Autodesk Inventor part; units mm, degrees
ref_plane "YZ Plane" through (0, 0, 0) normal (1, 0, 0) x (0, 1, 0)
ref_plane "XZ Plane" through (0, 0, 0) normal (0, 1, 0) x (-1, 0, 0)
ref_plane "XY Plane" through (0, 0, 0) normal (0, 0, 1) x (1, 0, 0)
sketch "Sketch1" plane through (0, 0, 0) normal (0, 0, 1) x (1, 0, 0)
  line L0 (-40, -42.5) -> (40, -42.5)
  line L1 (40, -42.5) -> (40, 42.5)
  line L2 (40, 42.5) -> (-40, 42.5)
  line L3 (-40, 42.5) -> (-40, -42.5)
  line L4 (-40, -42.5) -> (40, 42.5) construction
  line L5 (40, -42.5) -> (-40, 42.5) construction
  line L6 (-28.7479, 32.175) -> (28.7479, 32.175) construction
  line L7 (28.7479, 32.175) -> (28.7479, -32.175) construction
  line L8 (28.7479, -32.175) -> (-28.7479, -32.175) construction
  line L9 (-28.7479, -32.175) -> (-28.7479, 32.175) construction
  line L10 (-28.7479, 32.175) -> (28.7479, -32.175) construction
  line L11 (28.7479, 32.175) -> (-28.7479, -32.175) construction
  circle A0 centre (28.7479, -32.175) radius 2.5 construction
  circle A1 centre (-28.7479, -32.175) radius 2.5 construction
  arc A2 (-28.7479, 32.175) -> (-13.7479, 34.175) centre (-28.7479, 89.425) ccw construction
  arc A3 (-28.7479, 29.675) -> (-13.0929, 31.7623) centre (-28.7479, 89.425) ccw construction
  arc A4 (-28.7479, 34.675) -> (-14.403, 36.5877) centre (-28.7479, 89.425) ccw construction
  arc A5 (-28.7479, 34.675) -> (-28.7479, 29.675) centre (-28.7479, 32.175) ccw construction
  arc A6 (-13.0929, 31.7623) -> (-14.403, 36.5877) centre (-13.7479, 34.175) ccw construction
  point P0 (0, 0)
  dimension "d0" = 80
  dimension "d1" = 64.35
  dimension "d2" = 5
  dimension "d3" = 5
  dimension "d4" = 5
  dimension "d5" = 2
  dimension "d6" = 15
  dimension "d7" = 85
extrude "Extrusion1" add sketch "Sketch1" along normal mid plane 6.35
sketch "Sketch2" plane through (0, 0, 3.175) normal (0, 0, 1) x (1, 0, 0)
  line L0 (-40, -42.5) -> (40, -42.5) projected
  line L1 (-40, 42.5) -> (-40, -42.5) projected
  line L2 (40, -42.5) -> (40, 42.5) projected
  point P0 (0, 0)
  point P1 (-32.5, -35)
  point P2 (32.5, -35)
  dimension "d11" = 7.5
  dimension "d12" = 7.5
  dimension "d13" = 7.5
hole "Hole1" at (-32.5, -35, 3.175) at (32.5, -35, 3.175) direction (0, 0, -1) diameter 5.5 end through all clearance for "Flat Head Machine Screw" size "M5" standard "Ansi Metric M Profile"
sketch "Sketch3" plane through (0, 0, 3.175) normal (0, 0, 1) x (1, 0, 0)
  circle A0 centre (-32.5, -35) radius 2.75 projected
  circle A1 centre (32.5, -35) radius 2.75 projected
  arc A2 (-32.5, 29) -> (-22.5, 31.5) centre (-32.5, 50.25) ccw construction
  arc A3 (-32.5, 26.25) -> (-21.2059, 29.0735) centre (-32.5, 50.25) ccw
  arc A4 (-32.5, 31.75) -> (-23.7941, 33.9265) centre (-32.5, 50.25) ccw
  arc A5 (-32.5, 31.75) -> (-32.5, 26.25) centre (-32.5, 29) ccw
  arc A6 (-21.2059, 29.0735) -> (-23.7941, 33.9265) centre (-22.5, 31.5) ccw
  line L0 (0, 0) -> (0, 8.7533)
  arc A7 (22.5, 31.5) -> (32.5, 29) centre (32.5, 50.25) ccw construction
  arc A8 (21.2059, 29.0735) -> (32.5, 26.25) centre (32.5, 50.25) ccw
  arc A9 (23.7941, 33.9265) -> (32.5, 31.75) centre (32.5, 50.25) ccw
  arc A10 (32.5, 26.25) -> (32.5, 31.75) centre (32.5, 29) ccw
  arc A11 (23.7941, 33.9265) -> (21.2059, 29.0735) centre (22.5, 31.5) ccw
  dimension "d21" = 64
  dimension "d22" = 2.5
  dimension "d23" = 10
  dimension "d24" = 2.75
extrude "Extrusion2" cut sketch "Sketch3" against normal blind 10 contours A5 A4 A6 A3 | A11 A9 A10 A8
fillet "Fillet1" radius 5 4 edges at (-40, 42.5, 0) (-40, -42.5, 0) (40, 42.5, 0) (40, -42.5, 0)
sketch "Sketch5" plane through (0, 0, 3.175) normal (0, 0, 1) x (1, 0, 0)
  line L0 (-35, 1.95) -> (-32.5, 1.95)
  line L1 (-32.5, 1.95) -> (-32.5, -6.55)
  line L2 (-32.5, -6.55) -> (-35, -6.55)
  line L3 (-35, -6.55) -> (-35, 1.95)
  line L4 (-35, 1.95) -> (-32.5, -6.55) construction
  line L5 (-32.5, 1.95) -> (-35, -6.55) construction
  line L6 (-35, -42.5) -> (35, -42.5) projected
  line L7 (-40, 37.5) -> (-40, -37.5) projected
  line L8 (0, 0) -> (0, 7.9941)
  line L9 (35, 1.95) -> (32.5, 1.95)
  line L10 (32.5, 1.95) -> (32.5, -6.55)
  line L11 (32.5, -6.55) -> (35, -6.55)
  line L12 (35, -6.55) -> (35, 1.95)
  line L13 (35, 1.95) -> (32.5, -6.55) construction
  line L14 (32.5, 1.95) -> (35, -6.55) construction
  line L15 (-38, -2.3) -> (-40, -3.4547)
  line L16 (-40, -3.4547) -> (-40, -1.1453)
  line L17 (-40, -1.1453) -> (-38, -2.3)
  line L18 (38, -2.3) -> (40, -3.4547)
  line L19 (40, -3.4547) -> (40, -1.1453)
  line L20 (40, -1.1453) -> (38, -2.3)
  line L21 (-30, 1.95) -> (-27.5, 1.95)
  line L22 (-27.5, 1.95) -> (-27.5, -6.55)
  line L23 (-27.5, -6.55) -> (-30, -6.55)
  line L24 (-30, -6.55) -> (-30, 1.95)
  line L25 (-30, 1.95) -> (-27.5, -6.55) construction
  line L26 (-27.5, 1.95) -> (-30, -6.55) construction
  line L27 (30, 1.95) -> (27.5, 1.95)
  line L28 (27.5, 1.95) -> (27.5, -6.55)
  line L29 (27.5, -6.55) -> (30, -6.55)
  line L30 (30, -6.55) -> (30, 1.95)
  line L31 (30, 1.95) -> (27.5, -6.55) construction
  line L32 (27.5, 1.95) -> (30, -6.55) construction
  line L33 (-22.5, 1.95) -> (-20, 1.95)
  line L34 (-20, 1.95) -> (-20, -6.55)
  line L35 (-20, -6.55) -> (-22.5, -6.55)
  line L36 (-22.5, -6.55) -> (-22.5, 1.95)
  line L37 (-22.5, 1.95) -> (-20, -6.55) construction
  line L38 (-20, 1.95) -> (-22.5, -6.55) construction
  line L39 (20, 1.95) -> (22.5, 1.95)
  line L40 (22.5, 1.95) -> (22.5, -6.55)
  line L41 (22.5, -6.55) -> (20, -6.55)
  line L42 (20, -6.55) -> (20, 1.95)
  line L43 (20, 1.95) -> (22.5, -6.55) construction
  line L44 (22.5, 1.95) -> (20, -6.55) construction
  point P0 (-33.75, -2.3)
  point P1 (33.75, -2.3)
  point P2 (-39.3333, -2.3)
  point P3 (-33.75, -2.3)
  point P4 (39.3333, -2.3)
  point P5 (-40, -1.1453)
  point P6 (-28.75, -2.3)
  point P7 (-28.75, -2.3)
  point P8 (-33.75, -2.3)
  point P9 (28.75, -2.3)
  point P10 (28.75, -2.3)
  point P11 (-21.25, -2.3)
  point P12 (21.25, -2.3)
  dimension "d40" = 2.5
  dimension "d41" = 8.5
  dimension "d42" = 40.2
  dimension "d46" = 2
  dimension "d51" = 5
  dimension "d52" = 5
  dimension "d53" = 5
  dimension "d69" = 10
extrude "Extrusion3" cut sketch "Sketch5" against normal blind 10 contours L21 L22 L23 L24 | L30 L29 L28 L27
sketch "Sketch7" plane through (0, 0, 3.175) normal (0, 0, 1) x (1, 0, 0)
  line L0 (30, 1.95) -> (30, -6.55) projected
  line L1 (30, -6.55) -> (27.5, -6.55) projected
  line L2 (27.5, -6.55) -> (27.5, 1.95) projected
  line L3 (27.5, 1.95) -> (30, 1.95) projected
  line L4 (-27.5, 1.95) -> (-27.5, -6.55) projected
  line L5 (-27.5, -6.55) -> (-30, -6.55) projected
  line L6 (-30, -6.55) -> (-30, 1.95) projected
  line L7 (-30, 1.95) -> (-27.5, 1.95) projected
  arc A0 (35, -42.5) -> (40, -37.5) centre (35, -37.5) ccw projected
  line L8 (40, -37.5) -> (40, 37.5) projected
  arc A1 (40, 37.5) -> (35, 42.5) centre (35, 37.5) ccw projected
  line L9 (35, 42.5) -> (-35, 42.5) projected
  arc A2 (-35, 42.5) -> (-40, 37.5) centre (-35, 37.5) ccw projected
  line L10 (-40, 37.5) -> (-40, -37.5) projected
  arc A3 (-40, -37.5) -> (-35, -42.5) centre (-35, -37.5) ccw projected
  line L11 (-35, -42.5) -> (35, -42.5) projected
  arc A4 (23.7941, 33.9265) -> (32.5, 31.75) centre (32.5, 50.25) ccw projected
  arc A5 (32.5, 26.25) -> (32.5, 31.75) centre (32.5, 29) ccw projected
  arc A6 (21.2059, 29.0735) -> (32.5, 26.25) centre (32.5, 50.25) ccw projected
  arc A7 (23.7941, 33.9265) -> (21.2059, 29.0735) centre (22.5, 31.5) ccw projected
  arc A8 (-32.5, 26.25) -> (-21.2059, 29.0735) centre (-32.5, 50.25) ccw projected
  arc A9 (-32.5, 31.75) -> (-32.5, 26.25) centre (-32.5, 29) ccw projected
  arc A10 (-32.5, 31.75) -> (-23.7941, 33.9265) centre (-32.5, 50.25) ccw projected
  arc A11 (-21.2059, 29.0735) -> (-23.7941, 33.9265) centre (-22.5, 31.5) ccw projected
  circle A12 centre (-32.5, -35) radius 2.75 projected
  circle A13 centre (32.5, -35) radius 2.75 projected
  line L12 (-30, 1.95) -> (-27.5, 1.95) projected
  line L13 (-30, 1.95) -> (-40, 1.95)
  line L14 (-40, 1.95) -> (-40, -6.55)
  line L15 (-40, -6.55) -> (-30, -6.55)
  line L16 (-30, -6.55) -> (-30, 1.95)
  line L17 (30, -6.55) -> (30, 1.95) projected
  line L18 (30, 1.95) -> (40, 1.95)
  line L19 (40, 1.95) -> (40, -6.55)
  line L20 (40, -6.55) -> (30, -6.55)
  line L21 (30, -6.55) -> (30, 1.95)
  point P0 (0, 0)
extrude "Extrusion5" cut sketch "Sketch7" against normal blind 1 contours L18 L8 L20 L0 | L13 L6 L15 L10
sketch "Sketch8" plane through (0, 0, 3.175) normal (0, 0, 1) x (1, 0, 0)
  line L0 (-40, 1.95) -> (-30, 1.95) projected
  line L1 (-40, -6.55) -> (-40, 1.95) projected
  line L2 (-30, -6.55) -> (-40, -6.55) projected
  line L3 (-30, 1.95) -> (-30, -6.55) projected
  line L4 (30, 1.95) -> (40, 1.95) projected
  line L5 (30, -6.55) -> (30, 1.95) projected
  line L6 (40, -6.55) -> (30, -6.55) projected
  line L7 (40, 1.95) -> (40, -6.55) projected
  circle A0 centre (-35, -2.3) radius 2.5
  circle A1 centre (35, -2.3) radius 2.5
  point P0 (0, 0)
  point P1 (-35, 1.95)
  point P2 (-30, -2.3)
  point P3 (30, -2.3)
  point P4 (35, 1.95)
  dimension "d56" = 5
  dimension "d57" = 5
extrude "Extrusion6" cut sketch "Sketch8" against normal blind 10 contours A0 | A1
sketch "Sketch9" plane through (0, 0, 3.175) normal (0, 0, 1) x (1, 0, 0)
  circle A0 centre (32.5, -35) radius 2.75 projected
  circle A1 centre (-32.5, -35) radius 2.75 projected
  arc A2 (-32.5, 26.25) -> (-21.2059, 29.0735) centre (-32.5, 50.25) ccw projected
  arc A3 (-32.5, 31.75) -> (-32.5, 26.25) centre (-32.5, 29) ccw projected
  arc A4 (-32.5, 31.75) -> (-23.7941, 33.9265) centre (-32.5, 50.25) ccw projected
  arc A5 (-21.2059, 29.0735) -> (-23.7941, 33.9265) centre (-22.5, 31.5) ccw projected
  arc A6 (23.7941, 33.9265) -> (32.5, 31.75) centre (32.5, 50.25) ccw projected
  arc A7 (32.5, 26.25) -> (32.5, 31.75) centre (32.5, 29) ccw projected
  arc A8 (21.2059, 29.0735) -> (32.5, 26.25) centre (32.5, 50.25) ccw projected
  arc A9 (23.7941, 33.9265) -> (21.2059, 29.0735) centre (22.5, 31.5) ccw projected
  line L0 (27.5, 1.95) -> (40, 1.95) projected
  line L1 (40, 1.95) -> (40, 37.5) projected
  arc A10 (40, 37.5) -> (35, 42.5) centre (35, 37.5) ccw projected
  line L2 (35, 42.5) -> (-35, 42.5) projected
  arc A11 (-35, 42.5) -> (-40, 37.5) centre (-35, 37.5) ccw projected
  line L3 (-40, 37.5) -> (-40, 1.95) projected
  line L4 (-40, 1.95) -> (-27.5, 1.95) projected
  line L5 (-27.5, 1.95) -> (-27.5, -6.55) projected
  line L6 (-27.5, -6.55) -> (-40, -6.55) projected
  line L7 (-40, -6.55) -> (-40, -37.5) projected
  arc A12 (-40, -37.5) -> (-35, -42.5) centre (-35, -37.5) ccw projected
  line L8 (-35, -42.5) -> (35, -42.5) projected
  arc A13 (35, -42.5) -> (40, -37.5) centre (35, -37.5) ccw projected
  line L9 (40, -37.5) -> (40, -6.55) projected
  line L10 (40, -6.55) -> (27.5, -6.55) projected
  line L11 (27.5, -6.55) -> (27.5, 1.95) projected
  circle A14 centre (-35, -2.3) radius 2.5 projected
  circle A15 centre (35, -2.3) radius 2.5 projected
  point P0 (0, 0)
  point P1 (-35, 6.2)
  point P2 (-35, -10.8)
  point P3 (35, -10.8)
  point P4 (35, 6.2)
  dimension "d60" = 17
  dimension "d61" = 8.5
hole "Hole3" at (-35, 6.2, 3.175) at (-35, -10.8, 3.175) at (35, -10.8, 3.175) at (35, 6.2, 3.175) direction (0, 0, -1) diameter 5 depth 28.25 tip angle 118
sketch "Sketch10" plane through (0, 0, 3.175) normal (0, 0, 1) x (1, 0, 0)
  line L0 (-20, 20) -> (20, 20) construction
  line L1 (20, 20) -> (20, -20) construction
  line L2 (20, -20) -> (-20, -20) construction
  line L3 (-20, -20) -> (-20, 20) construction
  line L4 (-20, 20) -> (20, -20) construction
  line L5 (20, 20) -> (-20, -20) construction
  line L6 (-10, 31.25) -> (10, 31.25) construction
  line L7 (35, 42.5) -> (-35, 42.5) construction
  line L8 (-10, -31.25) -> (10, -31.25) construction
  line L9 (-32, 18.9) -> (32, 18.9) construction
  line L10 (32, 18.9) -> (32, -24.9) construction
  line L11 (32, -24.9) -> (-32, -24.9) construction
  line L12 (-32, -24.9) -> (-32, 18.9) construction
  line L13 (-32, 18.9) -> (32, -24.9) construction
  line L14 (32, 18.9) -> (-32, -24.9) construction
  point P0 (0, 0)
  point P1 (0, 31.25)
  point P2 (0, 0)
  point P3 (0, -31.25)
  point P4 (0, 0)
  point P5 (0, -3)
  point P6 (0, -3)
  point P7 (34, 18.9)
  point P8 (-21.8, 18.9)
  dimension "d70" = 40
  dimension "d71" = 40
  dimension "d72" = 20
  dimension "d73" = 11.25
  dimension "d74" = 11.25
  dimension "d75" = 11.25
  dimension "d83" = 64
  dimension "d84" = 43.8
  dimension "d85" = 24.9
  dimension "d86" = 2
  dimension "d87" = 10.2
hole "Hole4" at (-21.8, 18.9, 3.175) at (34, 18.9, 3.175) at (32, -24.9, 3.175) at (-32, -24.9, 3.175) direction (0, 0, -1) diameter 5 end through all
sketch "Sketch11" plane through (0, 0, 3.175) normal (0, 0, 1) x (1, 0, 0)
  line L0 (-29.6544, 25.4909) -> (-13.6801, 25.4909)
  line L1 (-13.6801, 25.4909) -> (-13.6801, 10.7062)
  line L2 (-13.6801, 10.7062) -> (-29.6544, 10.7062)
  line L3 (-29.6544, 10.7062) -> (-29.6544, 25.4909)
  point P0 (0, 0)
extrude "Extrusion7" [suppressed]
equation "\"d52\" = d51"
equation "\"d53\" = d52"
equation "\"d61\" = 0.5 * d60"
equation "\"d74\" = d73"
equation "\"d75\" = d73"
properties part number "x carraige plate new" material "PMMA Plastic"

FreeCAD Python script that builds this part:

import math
import FreeCAD as App
import Part
import Sketcher

V = App.Vector


def edges_at(feature, points):
    """Names of the edges that pass closest to the given points."""
    edges = feature.Shape.Edges
    near = lambda p: min(range(len(edges)), key=lambda i: edges[i].distToShape(Part.Vertex(*p))[0])
    return sorted({f"Edge{near(p) + 1}" for p in points})

doc = App.newDocument("Part")
body = doc.addObject("PartDesign::Body", "Body")

# Sketch on XY plane
sketch1 = body.newObject("Sketcher::SketchObject", "Sketch")
sketch1.AttachmentSupport = (doc.getObject("XY_Plane"), [""])
sketch1.MapMode = "FlatFace"
sketch1.addGeometry(Part.LineSegment(V(-40, 42.5, 0), V(-40, -42.5, 0)), False)
sketch1.addGeometry(Part.LineSegment(V(-40, -42.5, 0), V(40, -42.5, 0)), False)
sketch1.addGeometry(Part.LineSegment(V(40, -42.5, 0), V(40, 42.5, 0)), False)
sketch1.addGeometry(Part.LineSegment(V(40, 42.5, 0), V(-40, 42.5, 0)), False)
sketch1.addConstraint(Sketcher.Constraint("Coincident", 0, 2, 1, 1))
sketch1.addConstraint(Sketcher.Constraint("Coincident", 1, 2, 2, 1))
sketch1.addConstraint(Sketcher.Constraint("Coincident", 2, 2, 3, 1))
sketch1.addConstraint(Sketcher.Constraint("Coincident", 3, 2, 0, 1))
sketch1.addConstraint(Sketcher.Constraint("Vertical", 0))
sketch1.addConstraint(Sketcher.Constraint("Horizontal", 1))
sketch1.addConstraint(Sketcher.Constraint("Vertical", 2))
sketch1.addConstraint(Sketcher.Constraint("Horizontal", 3))
sketch1.addConstraint(Sketcher.Constraint("Symmetric", 0, 2, 2, 2, -1, 1))
sketch1.addConstraint(Sketcher.Constraint("DistanceX", 1, 1, 1, 2, 80.0))
sketch1.addConstraint(Sketcher.Constraint("DistanceY", 0, 2, 0, 1, 85.0))
pad1 = body.newObject("PartDesign::Pad", "Pad")
pad1.Profile = sketch1
pad1.Length = 6.35
pad1.Midplane = True

# Sketch on XY plane
sketch2 = body.newObject("Sketcher::SketchObject", "Sketch001")
sketch2.AttachmentSupport = (doc.getObject("XY_Plane"), [""])
sketch2.MapMode = "FlatFace"
sketch2.AttachmentOffset = App.Placement(V(0, 0, 3.175), App.Rotation())
sketch2.addGeometry(Part.Circle(V(-32.5, -35, 0), V(0, 0, 1), 2.75), False)
sketch2.addGeometry(Part.Circle(V(32.5, -35, 0), V(0, 0, 1), 2.75), False)
sketch2.addConstraint(Sketcher.Constraint("Equal", 0, 1))
sketch2.addConstraint(Sketcher.Constraint("Symmetric", 0, 3, 1, 3, -2))
sketch2.addConstraint(Sketcher.Constraint("Diameter", 0, 5.5))
sketch2.addConstraint(Sketcher.Constraint("DistanceY", 0, 3, -1, 1, 35.0))
sketch2.addConstraint(Sketcher.Constraint("DistanceX", 0, 3, 1, 3, 65.0))
doc.recompute()
hole = body.newObject("PartDesign::Hole", "Hole")
hole.Profile = sketch2
hole.ThreadType = "None"
hole.Diameter = 5.5
hole.DepthType = "ThroughAll"

# Sketch on XY plane
sketch3 = body.newObject("Sketcher::SketchObject", "Sketch002")
sketch3.AttachmentSupport = (doc.getObject("XY_Plane"), [""])
sketch3.MapMode = "FlatFace"
sketch3.AttachmentOffset = App.Placement(V(0, 0, 3.175), App.Rotation())
sketch3.addGeometry(Part.ArcOfCircle(Part.Circle(V(-32.5, 29, 0), V(0, 0, 1), 2.75), math.radians(90), math.radians(270)), False)
sketch3.addGeometry(Part.ArcOfCircle(Part.Circle(V(-32.5, 50.25, 0), V(0, 0, 1), 24), math.radians(-90), math.radians(-61.927583)), False)
sketch3.addGeometry(Part.ArcOfCircle(Part.Circle(V(-22.5, 31.5, 0), V(0, 0, 1), 2.750018), math.radians(-61.928126), math.radians(118.071874)), False)
sketch3.addGeometry(Part.ArcOfCircle(Part.Circle(V(-32.5, 50.25, 0), V(0, 0, 1), 18.5), math.radians(-90), math.radians(-61.927422)), False)
sketch3.addGeometry(Part.ArcOfCircle(Part.Circle(V(22.5, 31.5, 0), V(0, 0, 1), 2.750018), math.radians(61.928126), math.radians(241.928126)), False)
sketch3.addGeometry(Part.ArcOfCircle(Part.Circle(V(32.5, 50.25, 0), V(0, 0, 1), 24.000018), math.radians(-118.072417), math.radians(-90)), False)
sketch3.addGeometry(Part.ArcOfCircle(Part.Circle(V(32.5, 29, 0), V(0, 0, 1), 2.75), math.radians(-90), math.radians(90)), False)
sketch3.addGeometry(Part.ArcOfCircle(Part.Circle(V(32.5, 50.25, 0), V(0, 0, 1), 18.499982), math.radians(-118.072578), math.radians(-90)), False)
sketch3.addConstraint(Sketcher.Constraint("Tangent", 0, 2, 1, 1))
sketch3.addConstraint(Sketcher.Constraint("Tangent", 1, 2, 2, 1))
sketch3.addConstraint(Sketcher.Constraint("Tangent", 2, 2, 3, 2))
sketch3.addConstraint(Sketcher.Constraint("Tangent", 3, 1, 0, 1))
sketch3.addConstraint(Sketcher.Constraint("Tangent", 4, 2, 5, 1))
sketch3.addConstraint(Sketcher.Constraint("Tangent", 5, 2, 6, 1))
sketch3.addConstraint(Sketcher.Constraint("Tangent", 6, 2, 7, 2))
sketch3.addConstraint(Sketcher.Constraint("Tangent", 7, 1, 4, 1))
sketch3.addConstraint(Sketcher.Constraint("Coincident", 3, 3, 1, 3))
sketch3.addConstraint(Sketcher.Constraint("Coincident", 7, 3, 5, 3))
sketch3.addConstraint(Sketcher.Constraint("Equal", 2, 4))
sketch3.addConstraint(Sketcher.Constraint("Equal", 1, 5))
sketch3.addConstraint(Sketcher.Constraint("Symmetric", 2, 3, 4, 3, -2))
sketch3.addConstraint(Sketcher.Constraint("Symmetric", 0, 3, 6, 3, -2))
sketch3.addConstraint(Sketcher.Constraint("Vertical", 0, 3, 1, 3))
sketch3.addConstraint(Sketcher.Constraint("Radius", 0, 2.75))
sketch3.addConstraint(Sketcher.Constraint("Radius", 1, 24.0))
sketch3.addConstraint(Sketcher.Constraint("DistanceX", 0, 3, 2, 3, 10.0))
sketch3.addConstraint(Sketcher.Constraint("DistanceY", -1, 1, 0, 3, 29.0))
sketch3.addConstraint(Sketcher.Constraint("DistanceX", 2, 3, 4, 3, 45.0))
pocket1 = body.newObject("PartDesign::Pocket", "Pocket")
pocket1.Profile = sketch3
pocket1.Length = 10
doc.recompute()

fillet = body.newObject("PartDesign::Fillet", "Fillet")
fillet.Base = (pocket1, edges_at(pocket1, [
    (-40, 42.5, 0),
    (-40, -42.5, 0),
    (40, 42.5, 0),
    (40, -42.5, 0),
]))
fillet.Radius = 5

# Sketch on XY plane
sketch4 = body.newObject("Sketcher::SketchObject", "Sketch003")
sketch4.AttachmentSupport = (doc.getObject("XY_Plane"), [""])
sketch4.MapMode = "FlatFace"
sketch4.AttachmentOffset = App.Placement(V(0, 0, 3.175), App.Rotation())
sketch4.addGeometry(Part.LineSegment(V(-27.5, 1.95, 0), V(-30, 1.95, 0)), False)
sketch4.addGeometry(Part.LineSegment(V(-30, 1.95, 0), V(-30, -6.55, 0)), False)
sketch4.addGeometry(Part.LineSegment(V(-30, -6.55, 0), V(-27.5, -6.55, 0)), False)
sketch4.addGeometry(Part.LineSegment(V(-27.5, -6.55, 0), V(-27.5, 1.95, 0)), False)
sketch4.addGeometry(Part.LineSegment(V(30, -6.55, 0), V(30, 1.95, 0)), False)
sketch4.addGeometry(Part.LineSegment(V(30, 1.95, 0), V(27.5, 1.95, 0)), False)
sketch4.addGeometry(Part.LineSegment(V(27.5, 1.95, 0), V(27.5, -6.55, 0)), False)
sketch4.addGeometry(Part.LineSegment(V(27.5, -6.55, 0), V(30, -6.55, 0)), False)
sketch4.addConstraint(Sketcher.Constraint("Coincident", 0, 2, 1, 1))
sketch4.addConstraint(Sketcher.Constraint("Coincident", 1, 2, 2, 1))
sketch4.addConstraint(Sketcher.Constraint("Coincident", 2, 2, 3, 1))
sketch4.addConstraint(Sketcher.Constraint("Coincident", 3, 2, 0, 1))
sketch4.addConstraint(Sketcher.Constraint("Coincident", 4, 2, 5, 1))
sketch4.addConstraint(Sketcher.Constraint("Coincident", 5, 2, 6, 1))
sketch4.addConstraint(Sketcher.Constraint("Coincident", 6, 2, 7, 1))
sketch4.addConstraint(Sketcher.Constraint("Coincident", 7, 2, 4, 1))
sketch4.addConstraint(Sketcher.Constraint("Horizontal", 0))
sketch4.addConstraint(Sketcher.Constraint("Vertical", 1))
sketch4.addConstraint(Sketcher.Constraint("Horizontal", 2))
sketch4.addConstraint(Sketcher.Constraint("Vertical", 3))
sketch4.addConstraint(Sketcher.Constraint("Vertical", 4))
sketch4.addConstraint(Sketcher.Constraint("Horizontal", 5))
sketch4.addConstraint(Sketcher.Constraint("Vertical", 6))
sketch4.addConstraint(Sketcher.Constraint("Horizontal", 7))
sketch4.addConstraint(Sketcher.Constraint("Symmetric", 0, 2, 4, 2, -2))
sketch4.addConstraint(Sketcher.Constraint("Symmetric", 2, 2, 6, 2, -2))
sketch4.addConstraint(Sketcher.Constraint("DistanceX", 0, 2, 0, 1, 2.5))
sketch4.addConstraint(Sketcher.Constraint("DistanceY", 1, 2, 1, 1, 8.5))
sketch4.addConstraint(Sketcher.Constraint("DistanceX", 0, 2, -1, 1, 30.0))
sketch4.addConstraint(Sketcher.Constraint("DistanceY", -1, 1, 0, 2, 1.95))
pocket2 = body.newObject("PartDesign::Pocket", "Pocket001")
pocket2.Profile = sketch4
pocket2.Length = 10

# Sketch on XY plane
sketch5 = body.newObject("Sketcher::SketchObject", "Sketch004")
sketch5.AttachmentSupport = (doc.getObject("XY_Plane"), [""])
sketch5.MapMode = "FlatFace"
sketch5.AttachmentOffset = App.Placement(V(0, 0, 3.175), App.Rotation())
sketch5.addGeometry(Part.LineSegment(V(40, 1.95, 0), V(30, 1.95, 0)), False)
sketch5.addGeometry(Part.LineSegment(V(30, 1.95, 0), V(30, -6.55, 0)), False)
sketch5.addGeometry(Part.LineSegment(V(30, -6.55, 0), V(40, -6.55, 0)), False)
sketch5.addGeometry(Part.LineSegment(V(40, -6.55, 0), V(40, 1.95, 0)), False)
sketch5.addGeometry(Part.LineSegment(V(-30, 1.95, 0), V(-40, 1.95, 0)), False)
sketch5.addGeometry(Part.LineSegment(V(-40, 1.95, 0), V(-40, -6.55, 0)), False)
sketch5.addGeometry(Part.LineSegment(V(-40, -6.55, 0), V(-30, -6.55, 0)), False)
sketch5.addGeometry(Part.LineSegment(V(-30, -6.55, 0), V(-30, 1.95, 0)), False)
sketch5.addConstraint(Sketcher.Constraint("Coincident", 0, 2, 1, 1))
sketch5.addConstraint(Sketcher.Constraint("Coincident", 1, 2, 2, 1))
sketch5.addConstraint(Sketcher.Constraint("Coincident", 2, 2, 3, 1))
sketch5.addConstraint(Sketcher.Constraint("Coincident", 3, 2, 0, 1))
sketch5.addConstraint(Sketcher.Constraint("Coincident", 4, 2, 5, 1))
sketch5.addConstraint(Sketcher.Constraint("Coincident", 5, 2, 6, 1))
sketch5.addConstraint(Sketcher.Constraint("Coincident", 6, 2, 7, 1))
sketch5.addConstraint(Sketcher.Constraint("Coincident", 7, 2, 4, 1))
sketch5.addConstraint(Sketcher.Constraint("Horizontal", 0))
sketch5.addConstraint(Sketcher.Constraint("Vertical", 1))
sketch5.addConstraint(Sketcher.Constraint("Horizontal", 2))
sketch5.addConstraint(Sketcher.Constraint("Vertical", 3))
sketch5.addConstraint(Sketcher.Constraint("Horizontal", 4))
sketch5.addConstraint(Sketcher.Constraint("Vertical", 5))
sketch5.addConstraint(Sketcher.Constraint("Horizontal", 6))
sketch5.addConstraint(Sketcher.Constraint("Vertical", 7))
sketch5.addConstraint(Sketcher.Constraint("Symmetric", 3, 2, 4, 2, -2))
sketch5.addConstraint(Sketcher.Constraint("Symmetric", 1, 2, 6, 2, -2))
sketch5.addConstraint(Sketcher.Constraint("DistanceX", 0, 2, 0, 1, 10.0))
sketch5.addConstraint(Sketcher.Constraint("DistanceY", 1, 2, 1, 1, 8.5))
sketch5.addConstraint(Sketcher.Constraint("DistanceX", -1, 1, 0, 2, 30.0))
sketch5.addConstraint(Sketcher.Constraint("DistanceY", -1, 1, 0, 2, 1.95))
pocket3 = body.newObject("PartDesign::Pocket", "Pocket002")
pocket3.Profile = sketch5
pocket3.Length = 1

# Sketch on XY plane
sketch6 = body.newObject("Sketcher::SketchObject", "Sketch005")
sketch6.AttachmentSupport = (doc.getObject("XY_Plane"), [""])
sketch6.MapMode = "FlatFace"
sketch6.AttachmentOffset = App.Placement(V(0, 0, 3.175), App.Rotation())
sketch6.addGeometry(Part.Circle(V(-35, -2.3, 0), V(0, 0, 1), 2.5), False)
sketch6.addGeometry(Part.Circle(V(35, -2.3, 0), V(0, 0, 1), 2.5), False)
sketch6.addConstraint(Sketcher.Constraint("Equal", 0, 1))
sketch6.addConstraint(Sketcher.Constraint("Symmetric", 0, 3, 1, 3, -2))
sketch6.addConstraint(Sketcher.Constraint("Diameter", 0, 5.0))
sketch6.addConstraint(Sketcher.Constraint("DistanceX", 0, 3, -1, 1, 35.0))
sketch6.addConstraint(Sketcher.Constraint("DistanceY", 0, 3, -1, 1, 2.3))
pocket4 = body.newObject("PartDesign::Pocket", "Pocket003")
pocket4.Profile = sketch6
pocket4.Length = 10

# Sketch on XY plane
sketch7 = body.newObject("Sketcher::SketchObject", "Sketch006")
sketch7.AttachmentSupport = (doc.getObject("XY_Plane"), [""])
sketch7.MapMode = "FlatFace"
sketch7.AttachmentOffset = App.Placement(V(0, 0, 3.175), App.Rotation())
sketch7.addGeometry(Part.Circle(V(-35, 6.2, 0), V(0, 0, 1), 2.5), False)
sketch7.addGeometry(Part.Circle(V(-35, -10.8, 0), V(0, 0, 1), 2.5), False)
sketch7.addGeometry(Part.Circle(V(35, -10.8, 0), V(0, 0, 1), 2.5), False)
sketch7.addGeometry(Part.Circle(V(35, 6.2, 0), V(0, 0, 1), 2.5), False)
sketch7.addConstraint(Sketcher.Constraint("Equal", 0, 1))
sketch7.addConstraint(Sketcher.Constraint("Equal", 1, 2))
sketch7.addConstraint(Sketcher.Constraint("Equal", 2, 3))
sketch7.addConstraint(Sketcher.Constraint("Symmetric", 1, 3, 2, 3, -2))
sketch7.addConstraint(Sketcher.Constraint("Symmetric", 0, 3, 3, 3, -2))
sketch7.addConstraint(Sketcher.Constraint("Vertical", 0, 3, 1, 3))
sketch7.addConstraint(Sketcher.Constraint("Diameter", 0, 5.0))
sketch7.addConstraint(Sketcher.Constraint("DistanceX", 0, 3, -1, 1, 35.0))
sketch7.addConstraint(Sketcher.Constraint("DistanceY", 1, 3, 0, 3, 17.0))
sketch7.addConstraint(Sketcher.Constraint("DistanceY", -1, 1, 0, 3, 6.2))
doc.recompute()
hole2 = body.newObject("PartDesign::Hole", "Hole001")
hole2.Profile = sketch7
hole2.ThreadType = "None"
hole2.Diameter = 5
hole2.DepthType = "Dimension"
hole2.Depth = 28.25
hole2.DrillPoint = "Angled"
hole2.DrillPointAngle = 118

# Sketch on XY plane
sketch8 = body.newObject("Sketcher::SketchObject", "Sketch007")
sketch8.AttachmentSupport = (doc.getObject("XY_Plane"), [""])
sketch8.MapMode = "FlatFace"
sketch8.AttachmentOffset = App.Placement(V(0, 0, 3.175), App.Rotation())
sketch8.addGeometry(Part.Circle(V(-21.8, 18.9, 0), V(0, 0, 1), 2.5), False)
sketch8.addGeometry(Part.Circle(V(34, 18.9, 0), V(0, 0, 1), 2.5), False)
sketch8.addGeometry(Part.Circle(V(32, -24.9, 0), V(0, 0, 1), 2.5), False)
sketch8.addGeometry(Part.Circle(V(-32, -24.9, 0), V(0, 0, 1), 2.5), False)
sketch8.addConstraint(Sketcher.Constraint("Equal", 0, 1))
sketch8.addConstraint(Sketcher.Constraint("Equal", 1, 2))
sketch8.addConstraint(Sketcher.Constraint("Equal", 2, 3))
sketch8.addConstraint(Sketcher.Constraint("Symmetric", 2, 3, 3, 3, -2))
sketch8.addConstraint(Sketcher.Constraint("Horizontal", 0, 3, 1, 3))
sketch8.addConstraint(Sketcher.Constraint("Diameter", 0, 5.0))
sketch8.addConstraint(Sketcher.Constraint("DistanceX", -1, 1, 1, 3, 34.0))
sketch8.addConstraint(Sketcher.Constraint("DistanceX", -1, 1, 2, 3, 32.0))
sketch8.addConstraint(Sketcher.Constraint("DistanceX", 0, 3, -1, 1, 21.8))
sketch8.addConstraint(Sketcher.Constraint("DistanceY", -1, 1, 0, 3, 18.9))
sketch8.addConstraint(Sketcher.Constraint("DistanceY", 2, 3, -1, 1, 24.9))
doc.recompute()
hole3 = body.newObject("PartDesign::Hole", "Hole002")
hole3.Profile = sketch8
hole3.ThreadType = "None"
hole3.Diameter = 5
hole3.DepthType = "ThroughAll"

doc.recompute()
